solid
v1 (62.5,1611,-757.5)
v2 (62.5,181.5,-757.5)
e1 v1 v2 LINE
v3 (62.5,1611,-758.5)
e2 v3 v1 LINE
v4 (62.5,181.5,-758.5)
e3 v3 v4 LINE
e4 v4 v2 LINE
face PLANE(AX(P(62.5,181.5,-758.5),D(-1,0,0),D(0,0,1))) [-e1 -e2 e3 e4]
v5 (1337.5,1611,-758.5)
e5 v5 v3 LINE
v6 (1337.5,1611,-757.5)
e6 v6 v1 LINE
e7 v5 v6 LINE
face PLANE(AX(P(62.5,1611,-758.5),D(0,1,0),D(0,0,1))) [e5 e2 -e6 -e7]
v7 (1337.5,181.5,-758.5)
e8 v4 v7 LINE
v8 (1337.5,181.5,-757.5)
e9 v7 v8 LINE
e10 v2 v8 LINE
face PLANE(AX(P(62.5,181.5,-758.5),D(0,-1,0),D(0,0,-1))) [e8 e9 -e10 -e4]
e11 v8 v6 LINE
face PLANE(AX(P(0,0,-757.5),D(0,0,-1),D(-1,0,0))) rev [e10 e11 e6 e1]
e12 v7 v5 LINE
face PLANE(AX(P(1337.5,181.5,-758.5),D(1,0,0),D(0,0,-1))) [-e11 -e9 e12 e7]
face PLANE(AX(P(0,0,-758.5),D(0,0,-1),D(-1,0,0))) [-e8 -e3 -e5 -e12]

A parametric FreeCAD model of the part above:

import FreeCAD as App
import Part
import Sketcher

doc = App.newDocument("Part")
body = doc.addObject("PartDesign::Body", "Body")

# Sketch on XY plane
sketch1 = doc.addObject("Sketcher::SketchObject", "Sketch")
body.addObject(sketch1)
sketch1.AttachmentSupport = (doc.XY_Plane, [""])
sketch1.MapMode = "FlatFace"
sketch1.AttachmentOffset = App.Placement(App.Vector(0, 0, -757.5), App.Rotation())
sketch1.addGeometry(Part.LineSegment(App.Vector(62, 1611, 0), App.Vector(62, 182, 0)), False)
sketch1.addGeometry(Part.LineSegment(App.Vector(62, 182, 0), App.Vector(1338, 182, 0)), False)
sketch1.addGeometry(Part.LineSegment(App.Vector(1338, 182, 0), App.Vector(1338, 1611, 0)), False)
sketch1.addGeometry(Part.LineSegment(App.Vector(1338, 1611, 0), App.Vector(62, 1611, 0)), False)
sketch1.addConstraint(Sketcher.Constraint("Coincident", 0, 2, 1, 1))
sketch1.addConstraint(Sketcher.Constraint("Coincident", 1, 2, 2, 1))
sketch1.addConstraint(Sketcher.Constraint("Coincident", 2, 2, 3, 1))
sketch1.addConstraint(Sketcher.Constraint("Coincident", 3, 2, 0, 1))
sketch1.addConstraint(Sketcher.Constraint("Vertical", 0))
sketch1.addConstraint(Sketcher.Constraint("Horizontal", 1))
sketch1.addConstraint(Sketcher.Constraint("Vertical", 2))
sketch1.addConstraint(Sketcher.Constraint("Horizontal", 3))
sketch1.addConstraint(Sketcher.Constraint("DistanceX", 1, 1, 1, 2, 1275.0))
sketch1.addConstraint(Sketcher.Constraint("DistanceY", 0, 2, 0, 1, 1429.5))
sketch1.addConstraint(Sketcher.Constraint("DistanceY", -1, 1, 2, 2, 1611.0))
sketch1.addConstraint(Sketcher.Constraint("DistanceX", -1, 1, 0, 2, 62.5))
pad1 = doc.addObject("PartDesign::Pad", "Pad")
body.addObject(pad1)
pad1.Profile = sketch1
pad1.Length = 1
pad1.Reversed = True

doc.recompute()
